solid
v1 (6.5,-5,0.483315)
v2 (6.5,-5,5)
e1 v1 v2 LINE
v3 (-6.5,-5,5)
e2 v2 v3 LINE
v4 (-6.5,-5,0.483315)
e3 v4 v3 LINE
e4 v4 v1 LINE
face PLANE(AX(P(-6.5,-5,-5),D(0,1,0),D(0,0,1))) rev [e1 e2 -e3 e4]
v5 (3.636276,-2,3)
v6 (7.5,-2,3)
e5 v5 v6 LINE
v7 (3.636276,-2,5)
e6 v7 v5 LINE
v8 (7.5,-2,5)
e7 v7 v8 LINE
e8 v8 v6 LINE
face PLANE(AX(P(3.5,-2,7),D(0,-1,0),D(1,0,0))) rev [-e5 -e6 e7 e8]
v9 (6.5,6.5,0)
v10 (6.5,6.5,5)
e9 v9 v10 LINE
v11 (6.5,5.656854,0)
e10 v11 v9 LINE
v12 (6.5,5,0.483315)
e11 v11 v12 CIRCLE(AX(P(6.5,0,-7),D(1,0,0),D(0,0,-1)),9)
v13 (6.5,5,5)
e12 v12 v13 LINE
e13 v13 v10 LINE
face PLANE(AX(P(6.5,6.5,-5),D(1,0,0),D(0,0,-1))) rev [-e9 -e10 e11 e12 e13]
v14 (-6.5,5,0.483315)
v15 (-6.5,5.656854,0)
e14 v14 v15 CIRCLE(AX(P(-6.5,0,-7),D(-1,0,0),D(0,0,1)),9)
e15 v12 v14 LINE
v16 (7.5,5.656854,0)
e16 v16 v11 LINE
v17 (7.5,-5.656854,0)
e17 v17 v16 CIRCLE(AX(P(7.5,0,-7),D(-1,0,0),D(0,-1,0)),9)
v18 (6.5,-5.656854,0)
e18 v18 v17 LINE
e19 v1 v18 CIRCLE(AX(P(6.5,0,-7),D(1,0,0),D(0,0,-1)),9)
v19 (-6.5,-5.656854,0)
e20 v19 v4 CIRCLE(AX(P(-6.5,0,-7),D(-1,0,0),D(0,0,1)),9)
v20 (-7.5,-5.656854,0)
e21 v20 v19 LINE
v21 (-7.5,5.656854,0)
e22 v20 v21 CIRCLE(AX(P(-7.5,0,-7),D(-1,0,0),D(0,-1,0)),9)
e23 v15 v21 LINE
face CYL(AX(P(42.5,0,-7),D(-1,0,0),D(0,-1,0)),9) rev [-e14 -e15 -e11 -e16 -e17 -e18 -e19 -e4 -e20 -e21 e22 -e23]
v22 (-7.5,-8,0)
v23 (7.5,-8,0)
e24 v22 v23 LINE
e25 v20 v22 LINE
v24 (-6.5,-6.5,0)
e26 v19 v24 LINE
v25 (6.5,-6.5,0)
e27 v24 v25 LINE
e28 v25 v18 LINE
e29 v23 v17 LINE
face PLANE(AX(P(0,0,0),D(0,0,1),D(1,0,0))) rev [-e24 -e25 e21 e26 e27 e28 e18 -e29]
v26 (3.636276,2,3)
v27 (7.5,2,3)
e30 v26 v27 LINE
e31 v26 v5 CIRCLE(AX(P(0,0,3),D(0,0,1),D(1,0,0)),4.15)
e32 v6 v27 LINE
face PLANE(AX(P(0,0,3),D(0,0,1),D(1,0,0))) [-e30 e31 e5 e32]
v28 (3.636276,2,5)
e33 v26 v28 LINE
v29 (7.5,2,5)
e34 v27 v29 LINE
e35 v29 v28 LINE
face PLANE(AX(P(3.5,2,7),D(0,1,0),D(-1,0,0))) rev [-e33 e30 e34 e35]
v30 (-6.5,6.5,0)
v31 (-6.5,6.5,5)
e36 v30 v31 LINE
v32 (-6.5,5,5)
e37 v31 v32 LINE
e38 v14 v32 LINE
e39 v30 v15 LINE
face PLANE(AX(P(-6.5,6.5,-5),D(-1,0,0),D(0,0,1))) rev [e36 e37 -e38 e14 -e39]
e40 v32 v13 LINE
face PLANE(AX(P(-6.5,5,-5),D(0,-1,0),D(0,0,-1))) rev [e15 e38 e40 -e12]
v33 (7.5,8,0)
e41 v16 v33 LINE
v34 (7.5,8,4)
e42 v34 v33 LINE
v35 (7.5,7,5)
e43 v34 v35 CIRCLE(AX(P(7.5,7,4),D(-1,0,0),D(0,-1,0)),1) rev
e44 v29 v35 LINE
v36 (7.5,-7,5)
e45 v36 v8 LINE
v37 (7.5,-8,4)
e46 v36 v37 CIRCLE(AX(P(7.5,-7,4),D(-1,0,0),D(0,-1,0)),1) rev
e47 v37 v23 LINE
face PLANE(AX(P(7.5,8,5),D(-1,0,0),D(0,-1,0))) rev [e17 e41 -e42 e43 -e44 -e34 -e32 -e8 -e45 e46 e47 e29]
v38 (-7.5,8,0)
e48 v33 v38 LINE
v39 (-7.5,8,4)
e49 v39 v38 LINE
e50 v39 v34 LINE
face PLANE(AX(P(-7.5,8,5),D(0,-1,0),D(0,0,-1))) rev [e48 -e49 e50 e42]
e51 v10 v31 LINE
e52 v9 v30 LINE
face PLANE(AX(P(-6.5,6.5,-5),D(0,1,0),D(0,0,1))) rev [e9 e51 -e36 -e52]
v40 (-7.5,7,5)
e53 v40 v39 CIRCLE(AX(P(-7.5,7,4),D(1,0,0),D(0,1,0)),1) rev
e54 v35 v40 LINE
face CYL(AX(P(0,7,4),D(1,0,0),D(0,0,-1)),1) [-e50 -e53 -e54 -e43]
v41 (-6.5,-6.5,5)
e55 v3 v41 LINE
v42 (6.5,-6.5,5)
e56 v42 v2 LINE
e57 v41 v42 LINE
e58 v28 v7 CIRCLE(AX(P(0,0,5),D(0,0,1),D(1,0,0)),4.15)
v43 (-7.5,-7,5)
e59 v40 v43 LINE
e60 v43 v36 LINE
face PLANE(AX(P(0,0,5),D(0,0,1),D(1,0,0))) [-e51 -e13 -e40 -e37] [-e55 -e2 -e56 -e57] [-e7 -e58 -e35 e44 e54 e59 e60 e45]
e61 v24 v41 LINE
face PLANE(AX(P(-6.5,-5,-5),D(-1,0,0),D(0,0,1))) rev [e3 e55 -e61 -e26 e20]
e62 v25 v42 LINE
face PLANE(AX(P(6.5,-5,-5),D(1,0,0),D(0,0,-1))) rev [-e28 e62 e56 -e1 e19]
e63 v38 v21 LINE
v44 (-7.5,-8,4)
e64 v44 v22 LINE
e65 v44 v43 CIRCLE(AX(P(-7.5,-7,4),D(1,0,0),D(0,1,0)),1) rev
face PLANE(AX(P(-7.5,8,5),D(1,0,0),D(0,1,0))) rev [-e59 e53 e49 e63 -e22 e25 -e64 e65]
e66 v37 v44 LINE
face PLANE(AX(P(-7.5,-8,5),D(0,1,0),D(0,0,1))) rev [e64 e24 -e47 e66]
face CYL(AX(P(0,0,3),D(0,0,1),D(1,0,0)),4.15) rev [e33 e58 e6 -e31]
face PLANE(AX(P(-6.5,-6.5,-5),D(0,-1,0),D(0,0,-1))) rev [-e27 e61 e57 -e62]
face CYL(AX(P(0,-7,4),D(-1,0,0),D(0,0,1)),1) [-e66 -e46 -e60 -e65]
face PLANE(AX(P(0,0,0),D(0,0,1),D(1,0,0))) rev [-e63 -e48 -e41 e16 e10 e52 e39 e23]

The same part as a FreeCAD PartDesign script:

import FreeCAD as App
import Part
import Sketcher
Q = App.Units.Quantity


def edges_at(feature, points):
    """Names of the edges that pass closest to the given points."""
    edges = feature.Shape.Edges
    near = lambda p: min(range(len(edges)), key=lambda i: edges[i].distToShape(Part.Vertex(*p))[0])
    return sorted({f"Edge{near(p) + 1}" for p in points})

doc = App.newDocument("Part")
body = doc.addObject("PartDesign::Body", "Body")

# Sketch on XY plane
sketch1 = body.newObject("Sketcher::SketchObject", "Sketch")
sketch1.AttachmentSupport = (doc.getObject("XY_Plane"), [""])
sketch1.MapMode = "FlatFace"
sketch1.addGeometry(Part.LineSegment(App.Vector(-7.5, 8, 0), App.Vector(-7.5, -8, 0)), False)
sketch1.addGeometry(Part.LineSegment(App.Vector(-7.5, -8, 0), App.Vector(7.5, -8, 0)), False)
sketch1.addGeometry(Part.LineSegment(App.Vector(7.5, -8, 0), App.Vector(7.5, 8, 0)), False)
sketch1.addGeometry(Part.LineSegment(App.Vector(7.5, 8, 0), App.Vector(-7.5, 8, 0)), False)
sketch1.addConstraint(Sketcher.Constraint("Coincident", 0, 2, 1, 1))
sketch1.addConstraint(Sketcher.Constraint("Coincident", 1, 2, 2, 1))
sketch1.addConstraint(Sketcher.Constraint("Coincident", 2, 2, 3, 1))
sketch1.addConstraint(Sketcher.Constraint("Coincident", 3, 2, 0, 1))
sketch1.addConstraint(Sketcher.Constraint("Vertical", 0))
sketch1.addConstraint(Sketcher.Constraint("Horizontal", 1))
sketch1.addConstraint(Sketcher.Constraint("Vertical", 2))
sketch1.addConstraint(Sketcher.Constraint("Horizontal", 3))
sketch1.addConstraint(Sketcher.Constraint("Symmetric", 0, 2, 2, 2, -1, 1))
sketch1.addConstraint(Sketcher.Constraint("DistanceX", 1, 1, 1, 2, Q("15 mm")))
sketch1.addConstraint(Sketcher.Constraint("DistanceY", 0, 2, 0, 1, Q("16 mm")))
pad1 = body.newObject("PartDesign::Pad", "Pad")
pad1.Profile = sketch1
pad1.Length = 5

# Sketch on XY plane
sketch2 = body.newObject("Sketcher::SketchObject", "Sketch001")
sketch2.AttachmentSupport = (doc.getObject("XY_Plane"), [""])
sketch2.MapMode = "FlatFace"
sketch2.AttachmentOffset = App.Placement(App.Vector(0, 0, 5), App.Rotation())
sketch2.addGeometry(Part.Circle(App.Vector(0, 0, 0), App.Vector(0, 0, 1), 4.15), False)
sketch2.addConstraint(Sketcher.Constraint("Coincident", 0, 3, -1, 1))
sketch2.addConstraint(Sketcher.Constraint("Diameter", 0, Q("8.3 mm")))
pocket1 = body.newObject("PartDesign::Pocket", "Pocket")
pocket1.Profile = sketch2
pocket1.Length = 2

# Sketch on YZ plane
sketch3 = body.newObject("Sketcher::SketchObject", "Sketch002")
sketch3.AttachmentSupport = (doc.getObject("YZ_Plane"), [""])
sketch3.MapMode = "FlatFace"
sketch3.AttachmentOffset = App.Placement(App.Vector(0, 0, 7.5), App.Rotation())
sketch3.addGeometry(Part.LineSegment(App.Vector(2, 7, 0), App.Vector(-2, 7, 0)), False)
sketch3.addGeometry(Part.LineSegment(App.Vector(-2, 7, 0), App.Vector(-2, 3, 0)), False)
sketch3.addGeometry(Part.LineSegment(App.Vector(-2, 3, 0), App.Vector(2, 3, 0)), False)
sketch3.addGeometry(Part.LineSegment(App.Vector(2, 3, 0), App.Vector(2, 7, 0)), False)
sketch3.addConstraint(Sketcher.Constraint("Coincident", 0, 2, 1, 1))
sketch3.addConstraint(Sketcher.Constraint("Coincident", 1, 2, 2, 1))
sketch3.addConstraint(Sketcher.Constraint("Coincident", 2, 2, 3, 1))
sketch3.addConstraint(Sketcher.Constraint("Coincident", 3, 2, 0, 1))
sketch3.addConstraint(Sketcher.Constraint("Horizontal", 0))
sketch3.addConstraint(Sketcher.Constraint("Vertical", 1))
sketch3.addConstraint(Sketcher.Constraint("Horizontal", 2))
sketch3.addConstraint(Sketcher.Constraint("Vertical", 3))
sketch3.addConstraint(Sketcher.Constraint("Equal", 2, 1))
sketch3.addConstraint(Sketcher.Constraint("DistanceX", 0, 2, 0, 1, Q("4 mm")))
sketch3.addConstraint(Sketcher.Constraint("DistanceX", 0, 2, -1, 1, Q("2 mm")))
sketch3.addConstraint(Sketcher.Constraint("DistanceY", -1, 1, 0, 2, Q("7 mm")))
pocket2 = body.newObject("PartDesign::Pocket", "Pocket001")
pocket2.Profile = sketch3
pocket2.Length = 4

# Sketch on XY plane
sketch4 = body.newObject("Sketcher::SketchObject", "Sketch003")
sketch4.AttachmentSupport = (doc.getObject("XY_Plane"), [""])
sketch4.MapMode = "FlatFace"
sketch4.AttachmentOffset = App.Placement(App.Vector(0, 0, 5), App.Rotation())
sketch4.addGeometry(Part.LineSegment(App.Vector(-6.5, 6.5, 0), App.Vector(-6.5, 5, 0)), False)
sketch4.addGeometry(Part.LineSegment(App.Vector(-6.5, 5, 0), App.Vector(6.5, 5, 0)), False)
sketch4.addGeometry(Part.LineSegment(App.Vector(6.5, 5, 0), App.Vector(6.5, 6.5, 0)), False)
sketch4.addGeometry(Part.LineSegment(App.Vector(6.5, 6.5, 0), App.Vector(-6.5, 6.5, 0)), False)
sketch4.addGeometry(Part.LineSegment(App.Vector(-6.5, -5, 0), App.Vector(-6.5, -6.5, 0)), False)
sketch4.addGeometry(Part.LineSegment(App.Vector(-6.5, -6.5, 0), App.Vector(6.5, -6.5, 0)), False)
sketch4.addGeometry(Part.LineSegment(App.Vector(6.5, -6.5, 0), App.Vector(6.5, -5, 0)), False)
sketch4.addGeometry(Part.LineSegment(App.Vector(6.5, -5, 0), App.Vector(-6.5, -5, 0)), False)
sketch4.addConstraint(Sketcher.Constraint("Coincident", 0, 2, 1, 1))
sketch4.addConstraint(Sketcher.Constraint("Coincident", 1, 2, 2, 1))
sketch4.addConstraint(Sketcher.Constraint("Coincident", 2, 2, 3, 1))
sketch4.addConstraint(Sketcher.Constraint("Coincident", 3, 2, 0, 1))
sketch4.addConstraint(Sketcher.Constraint("Coincident", 4, 2, 5, 1))
sketch4.addConstraint(Sketcher.Constraint("Coincident", 5, 2, 6, 1))
sketch4.addConstraint(Sketcher.Constraint("Coincident", 6, 2, 7, 1))
sketch4.addConstraint(Sketcher.Constraint("Coincident", 7, 2, 4, 1))
sketch4.addConstraint(Sketcher.Constraint("Vertical", 0))
sketch4.addConstraint(Sketcher.Constraint("Horizontal", 1))
sketch4.addConstraint(Sketcher.Constraint("Vertical", 2))
sketch4.addConstraint(Sketcher.Constraint("Horizontal", 3))
sketch4.addConstraint(Sketcher.Constraint("Vertical", 4))
sketch4.addConstraint(Sketcher.Constraint("Horizontal", 5))
sketch4.addConstraint(Sketcher.Constraint("Vertical", 6))
sketch4.addConstraint(Sketcher.Constraint("Horizontal", 7))
sketch4.addConstraint(Sketcher.Constraint("Symmetric", 2, 2, 4, 2, -1, 1))
sketch4.addConstraint(Sketcher.Constraint("Symmetric", 0, 2, 6, 2, -1, 1))
sketch4.addConstraint(Sketcher.Constraint("Vertical", 3, 2, 4, 2))
sketch4.addConstraint(Sketcher.Constraint("DistanceX", 1, 1, 1, 2, Q("13 mm")))
sketch4.addConstraint(Sketcher.Constraint("DistanceY", 0, 2, 0, 1, Q("1.5 mm")))
sketch4.addConstraint(Sketcher.Constraint("DistanceY", -1, 1, 0, 2, Q("5 mm")))
pocket3 = body.newObject("PartDesign::Pocket", "Pocket002")
pocket3.Profile = sketch4
pocket3.Length = 10

# Sketch on YZ plane
sketch5 = body.newObject("Sketcher::SketchObject", "Sketch004")
sketch5.AttachmentSupport = (doc.getObject("YZ_Plane"), [""])
sketch5.MapMode = "FlatFace"
sketch5.AttachmentOffset = App.Placement(App.Vector(0, 0, -7.5), App.Rotation())
sketch5.addGeometry(Part.Circle(App.Vector(0, -7, 0), App.Vector(0, 0, 1), 9), False)
sketch5.addConstraint(Sketcher.Constraint("PointOnObject", 0, 3, -2))
sketch5.addConstraint(Sketcher.Constraint("Diameter", 0, Q("18 mm")))
sketch5.addConstraint(Sketcher.Constraint("DistanceY", 0, 3, -1, 1, Q("7 mm")))
pocket4 = body.newObject("PartDesign::Pocket", "Pocket003")
pocket4.Profile = sketch5
pocket4.Length = 50
pocket4.Reversed = True
doc.recompute()

fillet = body.newObject("PartDesign::Fillet", "Fillet")
fillet.Base = (pocket4, edges_at(pocket4, [(0, 8, 5)]))
fillet.Radius = 1
doc.recompute()

fillet2 = body.newObject("PartDesign::Fillet", "Fillet001")
fillet2.Base = (fillet, edges_at(fillet, [(0, -8, 5)]))
fillet2.Radius = 1

doc.recompute()
